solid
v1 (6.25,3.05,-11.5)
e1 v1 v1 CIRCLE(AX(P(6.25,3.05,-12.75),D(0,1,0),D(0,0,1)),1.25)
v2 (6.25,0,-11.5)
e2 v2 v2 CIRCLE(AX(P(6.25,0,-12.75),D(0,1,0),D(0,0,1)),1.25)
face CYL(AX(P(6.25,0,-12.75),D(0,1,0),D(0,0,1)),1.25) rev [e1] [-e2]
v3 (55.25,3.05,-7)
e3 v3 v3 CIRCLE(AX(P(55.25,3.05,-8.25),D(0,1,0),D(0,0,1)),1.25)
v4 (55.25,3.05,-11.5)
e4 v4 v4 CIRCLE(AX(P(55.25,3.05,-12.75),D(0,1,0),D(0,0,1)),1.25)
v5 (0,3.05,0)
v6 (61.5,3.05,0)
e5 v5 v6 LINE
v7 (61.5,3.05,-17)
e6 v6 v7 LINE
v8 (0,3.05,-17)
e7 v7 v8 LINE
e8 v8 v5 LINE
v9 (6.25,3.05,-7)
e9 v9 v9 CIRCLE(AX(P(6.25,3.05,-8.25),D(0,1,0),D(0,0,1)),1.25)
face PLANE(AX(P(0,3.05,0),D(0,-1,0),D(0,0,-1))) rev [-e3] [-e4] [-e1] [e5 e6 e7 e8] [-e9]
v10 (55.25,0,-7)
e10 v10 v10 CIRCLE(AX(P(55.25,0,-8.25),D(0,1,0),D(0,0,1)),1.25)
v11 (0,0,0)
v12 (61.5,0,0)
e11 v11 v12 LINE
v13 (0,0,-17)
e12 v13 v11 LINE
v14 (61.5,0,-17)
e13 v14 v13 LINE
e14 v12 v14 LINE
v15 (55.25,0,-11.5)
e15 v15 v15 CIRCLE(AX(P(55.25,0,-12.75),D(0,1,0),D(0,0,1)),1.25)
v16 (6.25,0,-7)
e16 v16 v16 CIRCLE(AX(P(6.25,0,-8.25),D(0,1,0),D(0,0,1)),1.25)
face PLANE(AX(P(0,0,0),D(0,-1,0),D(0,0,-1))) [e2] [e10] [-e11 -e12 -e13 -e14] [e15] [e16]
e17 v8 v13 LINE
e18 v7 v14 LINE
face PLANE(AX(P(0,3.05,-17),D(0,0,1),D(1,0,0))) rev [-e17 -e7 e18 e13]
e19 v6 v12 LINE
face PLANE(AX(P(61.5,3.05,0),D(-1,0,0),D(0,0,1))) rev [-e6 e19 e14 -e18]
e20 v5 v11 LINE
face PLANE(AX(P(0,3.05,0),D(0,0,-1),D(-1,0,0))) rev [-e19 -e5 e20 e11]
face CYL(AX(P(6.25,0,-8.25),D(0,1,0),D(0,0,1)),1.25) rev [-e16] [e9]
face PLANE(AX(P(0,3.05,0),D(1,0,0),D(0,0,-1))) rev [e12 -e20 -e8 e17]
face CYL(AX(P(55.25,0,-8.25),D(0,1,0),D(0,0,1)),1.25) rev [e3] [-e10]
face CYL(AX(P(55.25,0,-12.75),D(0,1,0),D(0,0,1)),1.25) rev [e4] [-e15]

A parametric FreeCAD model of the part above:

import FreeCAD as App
import Part
import Sketcher
Q = App.Units.Quantity

doc = App.newDocument("Part")
params = doc.addObject("Spreadsheet::Sheet", "Params")
for row, (alias, value) in enumerate([
    ("sketch1_height", "17 mm"),
    ("sketch1_width", "61.5 mm"),
    ("pad1_length", "3.05 mm"),
    ("sketch2_diameter", "2.5 mm"),
], start=1):
    params.set(f"A{row}", alias)
    params.set(f"B{row}", "=" + value)
    params.setAlias(f"B{row}", alias)

body = doc.addObject("PartDesign::Body", "Body")

# Sketch on XZ plane
sketch1 = body.newObject("Sketcher::SketchObject", "Sketch")
sketch1.AttachmentSupport = (doc.getObject("XZ_Plane"), [""])
sketch1.MapMode = "FlatFace"
sketch1.addGeometry([
    Part.LineSegment(App.Vector(0, -17, 0), App.Vector(0, 0, 0)),
    Part.LineSegment(App.Vector(0, 0, 0), App.Vector(62, 0, 0)),
    Part.LineSegment(App.Vector(62, 0, 0), App.Vector(62, -17, 0)),
    Part.LineSegment(App.Vector(62, -17, 0), App.Vector(0, -17, 0)),
], False)
sketch1.addConstraint([
    Sketcher.Constraint("Coincident", 0, 2, 1, 1),
    Sketcher.Constraint("Coincident", 1, 2, 2, 1),
    Sketcher.Constraint("Coincident", 2, 2, 3, 1),
    Sketcher.Constraint("Coincident", 3, 2, 0, 1),
    Sketcher.Constraint("Vertical", 0),
    Sketcher.Constraint("Horizontal", 1),
    Sketcher.Constraint("Vertical", 2),
    Sketcher.Constraint("Horizontal", 3),
    Sketcher.Constraint("Coincident", 0, 2, -1, 1),
    Sketcher.Constraint("DistanceY", 0, 1, 0, 2, Q("17 mm")),
    Sketcher.Constraint("DistanceX", 1, 1, 1, 2, Q("61.5 mm")),
])
sketch1.setExpression("Constraints[9]", "Params.sketch1_height")
sketch1.setExpression("Constraints[10]", "Params.sketch1_width")
pad1 = body.newObject("PartDesign::Pad", "Pad")
pad1.Profile = sketch1
pad1.setExpression("Length", "Params.pad1_length")
pad1.Reversed = True

# Sketch on XZ plane
sketch2 = body.newObject("Sketcher::SketchObject", "Sketch001")
sketch2.AttachmentSupport = (doc.getObject("XZ_Plane"), [""])
sketch2.MapMode = "FlatFace"
sketch2.AttachmentOffset = App.Placement(App.Vector(0, 0, -3.05), App.Rotation())
sketch2.addGeometry([
    Part.Circle(App.Vector(6.2, -12.8, 0), App.Vector(0, 0, 1), 1.2),
    Part.Circle(App.Vector(6.2, -8.2, 0), App.Vector(0, 0, 1), 1.2),
    Part.Circle(App.Vector(55.2, -12.8, 0), App.Vector(0, 0, 1), 1.2),
    Part.Circle(App.Vector(55.2, -8.2, 0), App.Vector(0, 0, 1), 1.2),
], False)
sketch2.addConstraint([
    Sketcher.Constraint("Equal", 0, 1),
    Sketcher.Constraint("Equal", 1, 2),
    Sketcher.Constraint("Equal", 2, 3),
    Sketcher.Constraint("Horizontal", 0, 3, 2, 3),
    Sketcher.Constraint("Horizontal", 1, 3, 3, 3),
    Sketcher.Constraint("Vertical", 0, 3, 1, 3),
    Sketcher.Constraint("Vertical", 2, 3, 3, 3),
    Sketcher.Constraint("Diameter", 0, Q("2.5 mm")),
    Sketcher.Constraint("DistanceX", 0, 3, 2, 3, Q("49 mm")),
    Sketcher.Constraint("DistanceY", 0, 3, 1, 3, Q("4.5 mm")),
    Sketcher.Constraint("DistanceX", -1, 1, 0, 3, Q("6.25 mm")),
    Sketcher.Constraint("DistanceY", 0, 3, -1, 1, Q("12.75 mm")),
])
sketch2.setExpression("Constraints[7]", "Params.sketch2_diameter")
pocket1 = body.newObject("PartDesign::Pocket", "Pocket")
pocket1.Profile = sketch2
pocket1.Type = "ThroughAll"
pocket1.Reversed = True

doc.recompute()
